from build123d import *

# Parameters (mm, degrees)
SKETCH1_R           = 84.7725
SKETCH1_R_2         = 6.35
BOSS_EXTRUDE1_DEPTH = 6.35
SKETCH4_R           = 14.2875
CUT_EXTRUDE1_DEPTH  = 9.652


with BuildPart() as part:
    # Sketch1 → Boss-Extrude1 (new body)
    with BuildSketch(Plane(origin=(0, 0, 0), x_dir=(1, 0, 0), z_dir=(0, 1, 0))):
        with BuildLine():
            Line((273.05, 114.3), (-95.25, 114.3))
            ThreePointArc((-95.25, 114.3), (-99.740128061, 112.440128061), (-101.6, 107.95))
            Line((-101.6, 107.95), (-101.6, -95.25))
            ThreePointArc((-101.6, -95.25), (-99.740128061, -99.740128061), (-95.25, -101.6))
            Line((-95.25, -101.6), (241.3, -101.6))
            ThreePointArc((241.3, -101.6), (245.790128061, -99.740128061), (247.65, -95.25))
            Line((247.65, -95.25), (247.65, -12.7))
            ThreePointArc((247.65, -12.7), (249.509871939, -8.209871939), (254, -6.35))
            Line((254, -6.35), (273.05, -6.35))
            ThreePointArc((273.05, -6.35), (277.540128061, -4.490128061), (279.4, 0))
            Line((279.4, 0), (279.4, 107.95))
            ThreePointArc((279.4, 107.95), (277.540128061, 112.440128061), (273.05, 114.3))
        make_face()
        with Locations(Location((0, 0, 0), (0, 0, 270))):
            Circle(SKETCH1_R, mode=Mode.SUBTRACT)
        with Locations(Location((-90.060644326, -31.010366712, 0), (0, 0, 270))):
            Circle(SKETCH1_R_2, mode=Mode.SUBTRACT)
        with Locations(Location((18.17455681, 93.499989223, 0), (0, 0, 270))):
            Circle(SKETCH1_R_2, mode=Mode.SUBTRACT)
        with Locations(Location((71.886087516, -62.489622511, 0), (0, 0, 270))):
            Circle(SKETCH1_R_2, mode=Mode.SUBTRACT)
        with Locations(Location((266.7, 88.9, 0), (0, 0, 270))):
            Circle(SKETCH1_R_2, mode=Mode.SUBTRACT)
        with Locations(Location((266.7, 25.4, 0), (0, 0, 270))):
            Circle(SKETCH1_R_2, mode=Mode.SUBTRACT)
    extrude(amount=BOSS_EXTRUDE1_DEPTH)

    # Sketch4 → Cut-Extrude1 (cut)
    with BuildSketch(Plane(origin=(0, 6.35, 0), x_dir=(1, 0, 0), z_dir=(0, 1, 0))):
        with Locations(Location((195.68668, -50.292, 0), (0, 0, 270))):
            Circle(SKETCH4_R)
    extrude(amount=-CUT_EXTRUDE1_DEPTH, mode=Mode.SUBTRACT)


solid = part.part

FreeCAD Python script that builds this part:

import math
import FreeCAD as App
import Part
import Sketcher

V = App.Vector
Q = App.Units.Quantity

doc = App.newDocument("Part")
params = doc.addObject("Spreadsheet::Sheet", "Params")
for row, (alias, value) in enumerate([
    ("sketch1_diameter", "0.5 in"),
    ("sketch1_height", "8 in"),
    ("sketch1_diameter2", "6.675 in"),
    ("sketch1_width", "14.5 in"),
    ("pad1_length", "0.25 in"),
    ("sketch2_diameter", "1.125 in"),
    ("pocket1_length", "0.38 in"),
], start=1):
    params.set(f"A{row}", alias)
    params.set(f"B{row}", "=" + value)
    params.setAlias(f"B{row}", alias)

body = doc.addObject("PartDesign::Body", "Body")

# Sketch on XZ plane
sketch1 = body.newObject("Sketcher::SketchObject", "Sketch")
sketch1.AttachmentSupport = (doc.getObject("XZ_Plane"), [""])
sketch1.MapMode = "FlatFace"
sketch1.addGeometry(Part.LineSegment(V(273, -114, 0), V(-95, -114, 0)), False)
sketch1.addGeometry(Part.ArcOfCircle(Part.Circle(V(-95, -108, 0), V(0, 0, 1), 6), math.radians(180), math.radians(270)), False)
sketch1.addGeometry(Part.LineSegment(V(-102, -108, 0), V(-102, 95, 0)), False)
sketch1.addGeometry(Part.ArcOfCircle(Part.Circle(V(-95, 95, 0), V(0, 0, 1), 6), math.radians(90), math.radians(180)), False)
sketch1.addGeometry(Part.LineSegment(V(-95, 102, 0), V(241, 102, 0)), False)
sketch1.addGeometry(Part.ArcOfCircle(Part.Circle(V(241, 95, 0), V(0, 0, 1), 6), math.radians(0), math.radians(90)), False)
sketch1.addGeometry(Part.LineSegment(V(248, 95, 0), V(248, 13, 0)), False)
sketch1.addGeometry(Part.ArcOfCircle(Part.Circle(V(254, 13, 0), V(0, 0, 1), 6), math.radians(180), math.radians(270)), False)
sketch1.addGeometry(Part.LineSegment(V(254, 6, 0), V(273, 6, 0)), False)
sketch1.addGeometry(Part.ArcOfCircle(Part.Circle(V(273, 0, 0), V(0, 0, 1), 6), math.radians(0), math.radians(90)), False)
sketch1.addGeometry(Part.LineSegment(V(279, 0, 0), V(279, -108, 0)), False)
sketch1.addGeometry(Part.ArcOfCircle(Part.Circle(V(273, -108, 0), V(0, 0, 1), 6), math.radians(-90), math.radians(0)), False)
sketch1.addGeometry(Part.Circle(V(72, 62, 0), V(0, 0, 1), 6), False)
sketch1.addGeometry(Part.Circle(V(-90, 31, 0), V(0, 0, 1), 6), False)
sketch1.addGeometry(Part.Circle(V(0, 0, 0), V(0, 0, 1), 85), False)
sketch1.addGeometry(Part.Circle(V(18, -93, 0), V(0, 0, 1), 6), False)
sketch1.addGeometry(Part.Circle(V(267, -25, 0), V(0, 0, 1), 6), False)
sketch1.addGeometry(Part.Circle(V(267, -89, 0), V(0, 0, 1), 6), False)
sketch1.addConstraint(Sketcher.Constraint("Tangent", 0, 2, 1, 2))
sketch1.addConstraint(Sketcher.Constraint("Tangent", 1, 1, 2, 1))
sketch1.addConstraint(Sketcher.Constraint("Tangent", 2, 2, 3, 2))
sketch1.addConstraint(Sketcher.Constraint("Tangent", 3, 1, 4, 1))
sketch1.addConstraint(Sketcher.Constraint("Tangent", 4, 2, 5, 2))
sketch1.addConstraint(Sketcher.Constraint("Tangent", 5, 1, 6, 1))
sketch1.addConstraint(Sketcher.Constraint("Tangent", 6, 2, 7, 1))
sketch1.addConstraint(Sketcher.Constraint("Tangent", 7, 2, 8, 1))
sketch1.addConstraint(Sketcher.Constraint("Tangent", 8, 2, 9, 2))
sketch1.addConstraint(Sketcher.Constraint("Tangent", 9, 1, 10, 1))
sketch1.addConstraint(Sketcher.Constraint("Tangent", 10, 2, 11, 2))
sketch1.addConstraint(Sketcher.Constraint("Tangent", 11, 1, 0, 1))
sketch1.addConstraint(Sketcher.Constraint("Horizontal", 0))
sketch1.addConstraint(Sketcher.Constraint("Vertical", 2))
sketch1.addConstraint(Sketcher.Constraint("Horizontal", 4))
sketch1.addConstraint(Sketcher.Constraint("Vertical", 6))
sketch1.addConstraint(Sketcher.Constraint("Horizontal", 8))
sketch1.addConstraint(Sketcher.Constraint("Vertical", 10))
sketch1.addConstraint(Sketcher.Constraint("Coincident", 14, 3, -1, 1))
sketch1.addConstraint(Sketcher.Constraint("Equal", 1, 3))
sketch1.addConstraint(Sketcher.Constraint("Equal", 3, 5))
sketch1.addConstraint(Sketcher.Constraint("Equal", 5, 7))
sketch1.addConstraint(Sketcher.Constraint("Equal", 7, 9))
sketch1.addConstraint(Sketcher.Constraint("Equal", 9, 11))
sketch1.addConstraint(Sketcher.Constraint("Equal", 11, 12))
sketch1.addConstraint(Sketcher.Constraint("Equal", 12, 13))
sketch1.addConstraint(Sketcher.Constraint("Equal", 13, 15))
sketch1.addConstraint(Sketcher.Constraint("Equal", 15, 16))
sketch1.addConstraint(Sketcher.Constraint("Equal", 16, 17))
sketch1.addConstraint(Sketcher.Constraint("PointOnObject", 9, 3, -1))
sketch1.addConstraint(Sketcher.Constraint("Vertical", 16, 3, 17, 3))
sketch1.addConstraint(Sketcher.Constraint("Diameter", 12, Q("0.5 in")))
sketch1.addConstraint(Sketcher.Constraint("DistanceY", 2, 1, 2, 2, Q("8 in")))
sketch1.addConstraint(Sketcher.Constraint("Diameter", 14, Q("6.675 in")))
sketch1.addConstraint(Sketcher.Constraint("DistanceX", 0, 2, 0, 1, Q("14.5 in")))
sketch1.addConstraint(Sketcher.Constraint("DistanceX", -1, 1, 7, 3, Q("10 in")))
sketch1.addConstraint(Sketcher.Constraint("DistanceY", 16, 3, -1, 1, Q("1 in")))
sketch1.addConstraint(Sketcher.Constraint("DistanceX", 1, 1, -1, 1, Q("4 in")))
sketch1.addConstraint(Sketcher.Constraint("DistanceY", -1, 1, 3, 1, Q("4 in")))
sketch1.addConstraint(Sketcher.Constraint("DistanceX", 5, 3, 16, 3, Q("1 in")))
sketch1.addConstraint(Sketcher.Constraint("DistanceY", 17, 3, 7, 3, Q("4 in")))
sketch1.addConstraint(Sketcher.Constraint("DistanceX", 13, 3, 15, 3, Q("108.235201 mm")))
sketch1.addConstraint(Sketcher.Constraint("DistanceY", 15, 3, -1, 1, Q("93.499989 mm")))
sketch1.addConstraint(Sketcher.Constraint("DistanceX", 13, 3, 12, 3, Q("161.946732 mm")))
sketch1.addConstraint(Sketcher.Constraint("DistanceY", 15, 3, 12, 3, Q("155.989612 mm")))
sketch1.addConstraint(Sketcher.Constraint("DistanceX", -1, 1, 12, 3, Q("71.886088 mm")))
sketch1.addConstraint(Sketcher.Constraint("DistanceY", -1, 1, 13, 3, Q("31.010367 mm")))
sketch1.setExpression("Constraints[31]", "Params.sketch1_diameter")
sketch1.setExpression("Constraints[32]", "Params.sketch1_height")
sketch1.setExpression("Constraints[33]", "Params.sketch1_diameter2")
sketch1.setExpression("Constraints[34]", "Params.sketch1_width")
pad1 = body.newObject("PartDesign::Pad", "Pad")
pad1.Profile = sketch1
pad1.setExpression("Length", "Params.pad1_length")
pad1.Reversed = True

# Sketch on XZ plane
sketch2 = body.newObject("Sketcher::SketchObject", "Sketch001")
sketch2.AttachmentSupport = (doc.getObject("XZ_Plane"), [""])
sketch2.MapMode = "FlatFace"
sketch2.AttachmentOffset = App.Placement(V(0, 0, -0.25 * 25.4), App.Rotation())
sketch2.addGeometry(Part.Circle(V(196, 50, 0), V(0, 0, 1), 14), False)
sketch2.addConstraint(Sketcher.Constraint("Diameter", 0, Q("1.125 in")))
sketch2.addConstraint(Sketcher.Constraint("DistanceY", -1, 1, 0, 3, Q("1.98 in")))
sketch2.addConstraint(Sketcher.Constraint("DistanceX", -1, 1, 0, 3, Q("7.7042 in")))
sketch2.setExpression("Constraints[0]", "Params.sketch2_diameter")
pocket1 = body.newObject("PartDesign::Pocket", "Pocket")
pocket1.Profile = sketch2
pocket1.setExpression("Length", "Params.pocket1_length")
pocket1.Reversed = True

doc.recompute()
